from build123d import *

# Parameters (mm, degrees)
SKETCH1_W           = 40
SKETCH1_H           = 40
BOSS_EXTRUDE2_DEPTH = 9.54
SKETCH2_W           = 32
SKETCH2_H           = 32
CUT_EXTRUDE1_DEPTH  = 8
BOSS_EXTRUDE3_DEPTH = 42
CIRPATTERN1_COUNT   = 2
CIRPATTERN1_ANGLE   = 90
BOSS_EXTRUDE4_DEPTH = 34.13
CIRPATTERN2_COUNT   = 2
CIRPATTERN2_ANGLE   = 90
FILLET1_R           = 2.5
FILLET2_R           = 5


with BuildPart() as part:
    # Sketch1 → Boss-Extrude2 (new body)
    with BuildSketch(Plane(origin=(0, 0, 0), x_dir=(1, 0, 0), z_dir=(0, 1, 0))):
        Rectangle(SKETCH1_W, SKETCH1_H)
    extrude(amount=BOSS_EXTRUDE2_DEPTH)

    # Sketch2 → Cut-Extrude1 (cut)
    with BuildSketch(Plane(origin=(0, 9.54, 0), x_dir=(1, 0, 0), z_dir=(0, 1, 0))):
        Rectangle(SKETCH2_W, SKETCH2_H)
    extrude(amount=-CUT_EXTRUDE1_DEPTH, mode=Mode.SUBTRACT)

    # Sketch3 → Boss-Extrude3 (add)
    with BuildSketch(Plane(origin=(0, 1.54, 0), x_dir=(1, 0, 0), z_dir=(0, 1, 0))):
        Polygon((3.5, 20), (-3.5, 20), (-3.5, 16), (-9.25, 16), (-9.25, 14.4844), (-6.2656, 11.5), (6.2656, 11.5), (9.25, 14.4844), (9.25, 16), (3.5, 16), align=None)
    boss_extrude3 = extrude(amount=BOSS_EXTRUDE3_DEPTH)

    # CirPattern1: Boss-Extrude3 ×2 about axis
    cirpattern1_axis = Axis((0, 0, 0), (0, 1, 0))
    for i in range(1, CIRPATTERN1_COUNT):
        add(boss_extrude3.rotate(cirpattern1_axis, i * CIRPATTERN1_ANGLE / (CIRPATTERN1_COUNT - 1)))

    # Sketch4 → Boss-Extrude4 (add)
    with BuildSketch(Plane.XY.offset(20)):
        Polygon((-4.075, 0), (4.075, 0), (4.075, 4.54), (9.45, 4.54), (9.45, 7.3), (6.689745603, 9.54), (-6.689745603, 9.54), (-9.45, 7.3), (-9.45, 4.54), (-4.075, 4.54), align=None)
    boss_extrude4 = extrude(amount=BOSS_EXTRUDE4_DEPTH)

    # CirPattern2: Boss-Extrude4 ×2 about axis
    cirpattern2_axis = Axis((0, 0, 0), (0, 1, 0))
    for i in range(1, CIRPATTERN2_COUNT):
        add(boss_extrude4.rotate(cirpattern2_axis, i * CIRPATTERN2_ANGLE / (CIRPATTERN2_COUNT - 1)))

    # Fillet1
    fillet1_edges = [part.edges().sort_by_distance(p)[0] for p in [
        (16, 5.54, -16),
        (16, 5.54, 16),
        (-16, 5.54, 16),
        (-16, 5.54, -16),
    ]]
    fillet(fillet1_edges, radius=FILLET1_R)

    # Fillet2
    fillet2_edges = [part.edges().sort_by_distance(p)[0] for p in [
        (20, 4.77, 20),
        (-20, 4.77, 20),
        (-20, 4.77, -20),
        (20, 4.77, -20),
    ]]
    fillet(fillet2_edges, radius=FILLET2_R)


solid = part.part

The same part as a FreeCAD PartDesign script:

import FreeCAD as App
import Part
import Sketcher
Q = App.Units.Quantity


def edges_at(feature, points):
    """Names of the edges that pass closest to the given points."""
    edges = feature.Shape.Edges
    near = lambda p: min(range(len(edges)), key=lambda i: edges[i].distToShape(Part.Vertex(*p))[0])
    return sorted({f"Edge{near(p) + 1}" for p in points})

doc = App.newDocument("Part")
body = doc.addObject("PartDesign::Body", "Body")

sketch1 = body.newObject("Sketcher::SketchObject", "Sketch")
sketch1.AttachmentSupport = (doc.getObject("XZ_Plane"), [""])
sketch1.MapMode = "FlatFace"
sketch1.addGeometry(Part.LineSegment(App.Vector(-20, -20, 0), App.Vector(-20, 20, 0)), False)
sketch1.addGeometry(Part.LineSegment(App.Vector(-20, 20, 0), App.Vector(20, 20, 0)), False)
sketch1.addGeometry(Part.LineSegment(App.Vector(20, 20, 0), App.Vector(20, -20, 0)), False)
sketch1.addGeometry(Part.LineSegment(App.Vector(20, -20, 0), App.Vector(-20, -20, 0)), False)
sketch1.addConstraint(Sketcher.Constraint("Coincident", 0, 2, 1, 1))
sketch1.addConstraint(Sketcher.Constraint("Coincident", 1, 2, 2, 1))
sketch1.addConstraint(Sketcher.Constraint("Coincident", 2, 2, 3, 1))
sketch1.addConstraint(Sketcher.Constraint("Coincident", 3, 2, 0, 1))
sketch1.addConstraint(Sketcher.Constraint("Vertical", 0))
sketch1.addConstraint(Sketcher.Constraint("Horizontal", 1))
sketch1.addConstraint(Sketcher.Constraint("Vertical", 2))
sketch1.addConstraint(Sketcher.Constraint("Horizontal", 3))
sketch1.addConstraint(Sketcher.Constraint("Symmetric", 0, 2, 2, 2, -1, 1))
sketch1.addConstraint(Sketcher.Constraint("Equal", 3, 0))
sketch1.addConstraint(Sketcher.Constraint("DistanceX", 1, 1, 1, 2, Q("40 mm")))
pad1 = body.newObject("PartDesign::Pad", "Pad")
pad1.Profile = sketch1
pad1.Length = 9.54
pad1.Reversed = True

sketch2 = body.newObject("Sketcher::SketchObject", "Sketch001")
sketch2.AttachmentSupport = (doc.getObject("XZ_Plane"), [""])
sketch2.MapMode = "FlatFace"
sketch2.AttachmentOffset = App.Placement(App.Vector(0, 0, -9.54), App.Rotation())
sketch2.addGeometry(Part.LineSegment(App.Vector(-16, -16, 0), App.Vector(-16, 16, 0)), False)
sketch2.addGeometry(Part.LineSegment(App.Vector(-16, 16, 0), App.Vector(16, 16, 0)), False)
sketch2.addGeometry(Part.LineSegment(App.Vector(16, 16, 0), App.Vector(16, -16, 0)), False)
sketch2.addGeometry(Part.LineSegment(App.Vector(16, -16, 0), App.Vector(-16, -16, 0)), False)
sketch2.addConstraint(Sketcher.Constraint("Coincident", 0, 2, 1, 1))
sketch2.addConstraint(Sketcher.Constraint("Coincident", 1, 2, 2, 1))
sketch2.addConstraint(Sketcher.Constraint("Coincident", 2, 2, 3, 1))
sketch2.addConstraint(Sketcher.Constraint("Coincident", 3, 2, 0, 1))
sketch2.addConstraint(Sketcher.Constraint("Vertical", 0))
sketch2.addConstraint(Sketcher.Constraint("Horizontal", 1))
sketch2.addConstraint(Sketcher.Constraint("Vertical", 2))
sketch2.addConstraint(Sketcher.Constraint("Horizontal", 3))
sketch2.addConstraint(Sketcher.Constraint("Symmetric", 0, 2, 2, 2, -1, 1))
sketch2.addConstraint(Sketcher.Constraint("Equal", 3, 0))
sketch2.addConstraint(Sketcher.Constraint("DistanceX", 1, 1, 1, 2, Q("32 mm")))
pocket1 = body.newObject("PartDesign::Pocket", "Pocket")
pocket1.Profile = sketch2
pocket1.Length = 8
pocket1.Reversed = True

sketch3 = body.newObject("Sketcher::SketchObject", "Sketch002")
sketch3.AttachmentSupport = (doc.getObject("XZ_Plane"), [""])
sketch3.MapMode = "FlatFace"
sketch3.AttachmentOffset = App.Placement(App.Vector(0, 0, -1.54), App.Rotation())
sketch3.addGeometry(Part.LineSegment(App.Vector(3.5, -20, 0), App.Vector(-3.5, -20, 0)), False)
sketch3.addGeometry(Part.LineSegment(App.Vector(-3.5, -20, 0), App.Vector(-3.5, -16, 0)), False)
sketch3.addGeometry(Part.LineSegment(App.Vector(-3.5, -16, 0), App.Vector(-9.2, -16, 0)), False)
sketch3.addGeometry(Part.LineSegment(App.Vector(-9.2, -16, 0), App.Vector(-9.2, -14.5, 0)), False)
sketch3.addGeometry(Part.LineSegment(App.Vector(-9.2, -14.5, 0), App.Vector(-6.3, -11.5, 0)), False)
sketch3.addGeometry(Part.LineSegment(App.Vector(-6.3, -11.5, 0), App.Vector(6.3, -11.5, 0)), False)
sketch3.addGeometry(Part.LineSegment(App.Vector(6.3, -11.5, 0), App.Vector(9.2, -14.5, 0)), False)
sketch3.addGeometry(Part.LineSegment(App.Vector(9.2, -14.5, 0), App.Vector(9.2, -16, 0)), False)
sketch3.addGeometry(Part.LineSegment(App.Vector(9.2, -16, 0), App.Vector(3.5, -16, 0)), False)
sketch3.addGeometry(Part.LineSegment(App.Vector(3.5, -16, 0), App.Vector(3.5, -20, 0)), False)
sketch3.addConstraint(Sketcher.Constraint("Coincident", 0, 2, 1, 1))
sketch3.addConstraint(Sketcher.Constraint("Coincident", 1, 2, 2, 1))
sketch3.addConstraint(Sketcher.Constraint("Coincident", 2, 2, 3, 1))
sketch3.addConstraint(Sketcher.Constraint("Coincident", 3, 2, 4, 1))
sketch3.addConstraint(Sketcher.Constraint("Coincident", 4, 2, 5, 1))
sketch3.addConstraint(Sketcher.Constraint("Coincident", 5, 2, 6, 1))
sketch3.addConstraint(Sketcher.Constraint("Coincident", 6, 2, 7, 1))
sketch3.addConstraint(Sketcher.Constraint("Coincident", 7, 2, 8, 1))
sketch3.addConstraint(Sketcher.Constraint("Coincident", 8, 2, 9, 1))
sketch3.addConstraint(Sketcher.Constraint("Coincident", 9, 2, 0, 1))
sketch3.addConstraint(Sketcher.Constraint("Horizontal", 0))
sketch3.addConstraint(Sketcher.Constraint("Vertical", 1))
sketch3.addConstraint(Sketcher.Constraint("Horizontal", 2))
sketch3.addConstraint(Sketcher.Constraint("Vertical", 3))
sketch3.addConstraint(Sketcher.Constraint("Horizontal", 5))
sketch3.addConstraint(Sketcher.Constraint("Vertical", 7))
sketch3.addConstraint(Sketcher.Constraint("Horizontal", 8))
sketch3.addConstraint(Sketcher.Constraint("Vertical", 9))
sketch3.addConstraint(Sketcher.Constraint("Symmetric", 3, 2, 6, 2, -2))
sketch3.addConstraint(Sketcher.Constraint("Symmetric", 1, 2, 8, 2, -2))
sketch3.addConstraint(Sketcher.Constraint("Perpendicular", 4, 6))
sketch3.addConstraint(Sketcher.Constraint("Equal", 4, 6))
sketch3.addConstraint(Sketcher.Constraint("DistanceX", 0, 2, 0, 1, Q("7 mm")))
sketch3.addConstraint(Sketcher.Constraint("DistanceY", 1, 1, 1, 2, Q("4 mm")))
sketch3.addConstraint(Sketcher.Constraint("DistanceY", 0, 2, -1, 1, Q("20 mm")))
sketch3.addConstraint(Sketcher.Constraint("DistanceX", 2, 2, 2, 1, Q("5.75 mm")))
sketch3.addConstraint(Sketcher.Constraint("DistanceY", 4, 2, -1, 1, Q("11.5 mm")))
sketch3.addConstraint(Sketcher.Constraint("DistanceX", 5, 1, 5, 2, Q("12.5312 mm")))
pad2 = body.newObject("PartDesign::Pad", "Pad001")
pad2.Profile = sketch3
pad2.Length = 42
pad2.Reversed = True
doc.recompute()

polarpattern = body.newObject("PartDesign::PolarPattern", "PolarPattern")
polarpattern.Originals = [pad2]
polarpattern.Axis = (doc.getObject("Y_Axis"), [""])
polarpattern.Angle = 90
polarpattern.Occurrences = 2
body.Tip = polarpattern

sketch4 = body.newObject("Sketcher::SketchObject", "Sketch003")
sketch4.AttachmentSupport = (doc.getObject("XY_Plane"), [""])
sketch4.MapMode = "FlatFace"
sketch4.AttachmentOffset = App.Placement(App.Vector(0, 0, 20), App.Rotation())
sketch4.addGeometry(Part.LineSegment(App.Vector(-4.1, 0, 0), App.Vector(4.1, 0, 0)), False)
sketch4.addGeometry(Part.LineSegment(App.Vector(4.1, 0, 0), App.Vector(4.1, 4.5, 0)), False)
sketch4.addGeometry(Part.LineSegment(App.Vector(4.1, 4.5, 0), App.Vector(9.4, 4.5, 0)), False)
sketch4.addGeometry(Part.LineSegment(App.Vector(9.4, 4.5, 0), App.Vector(9.4, 7.3, 0)), False)
sketch4.addGeometry(Part.LineSegment(App.Vector(9.4, 7.3, 0), App.Vector(6.7, 9.5, 0)), False)
sketch4.addGeometry(Part.LineSegment(App.Vector(6.7, 9.5, 0), App.Vector(-6.7, 9.5, 0)), False)
sketch4.addGeometry(Part.LineSegment(App.Vector(-6.7, 9.5, 0), App.Vector(-9.4, 7.3, 0)), False)
sketch4.addGeometry(Part.LineSegment(App.Vector(-9.4, 7.3, 0), App.Vector(-9.4, 4.5, 0)), False)
sketch4.addGeometry(Part.LineSegment(App.Vector(-9.4, 4.5, 0), App.Vector(-4.1, 4.5, 0)), False)
sketch4.addGeometry(Part.LineSegment(App.Vector(-4.1, 4.5, 0), App.Vector(-4.1, 0, 0)), False)
sketch4.addConstraint(Sketcher.Constraint("Coincident", 0, 2, 1, 1))
sketch4.addConstraint(Sketcher.Constraint("Coincident", 1, 2, 2, 1))
sketch4.addConstraint(Sketcher.Constraint("Coincident", 2, 2, 3, 1))
sketch4.addConstraint(Sketcher.Constraint("Coincident", 3, 2, 4, 1))
sketch4.addConstraint(Sketcher.Constraint("Coincident", 4, 2, 5, 1))
sketch4.addConstraint(Sketcher.Constraint("Coincident", 5, 2, 6, 1))
sketch4.addConstraint(Sketcher.Constraint("Coincident", 6, 2, 7, 1))
sketch4.addConstraint(Sketcher.Constraint("Coincident", 7, 2, 8, 1))
sketch4.addConstraint(Sketcher.Constraint("Coincident", 8, 2, 9, 1))
sketch4.addConstraint(Sketcher.Constraint("Coincident", 9, 2, 0, 1))
sketch4.addConstraint(Sketcher.Constraint("Horizontal", 0))
sketch4.addConstraint(Sketcher.Constraint("Vertical", 1))
sketch4.addConstraint(Sketcher.Constraint("Horizontal", 2))
sketch4.addConstraint(Sketcher.Constraint("Vertical", 3))
sketch4.addConstraint(Sketcher.Constraint("Horizontal", 5))
sketch4.addConstraint(Sketcher.Constraint("Vertical", 7))
sketch4.addConstraint(Sketcher.Constraint("Horizontal", 8))
sketch4.addConstraint(Sketcher.Constraint("Vertical", 9))
sketch4.addConstraint(Sketcher.Constraint("Symmetric", 0, 2, 9, 2, -1, 1))
sketch4.addConstraint(Sketcher.Constraint("Symmetric", 3, 2, 6, 2, -2))
sketch4.addConstraint(Sketcher.Constraint("Horizontal", 2, 2, 7, 2))
sketch4.addConstraint(Sketcher.Constraint("Equal", 4, 6))
sketch4.addConstraint(Sketcher.Constraint("DistanceY", 1, 2, 4, 2, Q("5 mm")))
sketch4.addConstraint(Sketcher.Constraint("DistanceX", 0, 1, 0, 2, Q("8.15 mm")))
sketch4.addConstraint(Sketcher.Constraint("DistanceY", 1, 1, 1, 2, Q("4.54 mm")))
sketch4.addConstraint(Sketcher.Constraint("DistanceY", 3, 1, 3, 2, Q("2.76 mm")))
sketch4.addConstraint(Sketcher.Constraint("Angle", 4, Q("140.94 deg")))
sketch4.addConstraint(Sketcher.Constraint("DistanceX", 6, 2, 3, 2, Q("18.9 mm")))
pad3 = body.newObject("PartDesign::Pad", "Pad002")
pad3.Profile = sketch4
pad3.Length = 34.13
doc.recompute()

polarpattern2 = body.newObject("PartDesign::PolarPattern", "PolarPattern001")
polarpattern2.Originals = [pad3]
polarpattern2.Axis = (doc.getObject("Y_Axis"), [""])
polarpattern2.Angle = 90
polarpattern2.Occurrences = 2
body.Tip = polarpattern2
doc.recompute()

fillet = body.newObject("PartDesign::Fillet", "Fillet")
fillet.Base = (polarpattern2, edges_at(polarpattern2, [
    (16, 5.54, -16),
    (16, 5.54, 16),
    (-16, 5.54, 16),
    (-16, 5.54, -16),
]))
fillet.Radius = 2.5
doc.recompute()

fillet2 = body.newObject("PartDesign::Fillet", "Fillet001")
fillet2.Base = (fillet, edges_at(fillet, [
    (20, 4.77, 20),
    (-20, 4.77, 20),
    (-20, 4.77, -20),
    (20, 4.77, -20),
]))
fillet2.Radius = 5

doc.recompute()
